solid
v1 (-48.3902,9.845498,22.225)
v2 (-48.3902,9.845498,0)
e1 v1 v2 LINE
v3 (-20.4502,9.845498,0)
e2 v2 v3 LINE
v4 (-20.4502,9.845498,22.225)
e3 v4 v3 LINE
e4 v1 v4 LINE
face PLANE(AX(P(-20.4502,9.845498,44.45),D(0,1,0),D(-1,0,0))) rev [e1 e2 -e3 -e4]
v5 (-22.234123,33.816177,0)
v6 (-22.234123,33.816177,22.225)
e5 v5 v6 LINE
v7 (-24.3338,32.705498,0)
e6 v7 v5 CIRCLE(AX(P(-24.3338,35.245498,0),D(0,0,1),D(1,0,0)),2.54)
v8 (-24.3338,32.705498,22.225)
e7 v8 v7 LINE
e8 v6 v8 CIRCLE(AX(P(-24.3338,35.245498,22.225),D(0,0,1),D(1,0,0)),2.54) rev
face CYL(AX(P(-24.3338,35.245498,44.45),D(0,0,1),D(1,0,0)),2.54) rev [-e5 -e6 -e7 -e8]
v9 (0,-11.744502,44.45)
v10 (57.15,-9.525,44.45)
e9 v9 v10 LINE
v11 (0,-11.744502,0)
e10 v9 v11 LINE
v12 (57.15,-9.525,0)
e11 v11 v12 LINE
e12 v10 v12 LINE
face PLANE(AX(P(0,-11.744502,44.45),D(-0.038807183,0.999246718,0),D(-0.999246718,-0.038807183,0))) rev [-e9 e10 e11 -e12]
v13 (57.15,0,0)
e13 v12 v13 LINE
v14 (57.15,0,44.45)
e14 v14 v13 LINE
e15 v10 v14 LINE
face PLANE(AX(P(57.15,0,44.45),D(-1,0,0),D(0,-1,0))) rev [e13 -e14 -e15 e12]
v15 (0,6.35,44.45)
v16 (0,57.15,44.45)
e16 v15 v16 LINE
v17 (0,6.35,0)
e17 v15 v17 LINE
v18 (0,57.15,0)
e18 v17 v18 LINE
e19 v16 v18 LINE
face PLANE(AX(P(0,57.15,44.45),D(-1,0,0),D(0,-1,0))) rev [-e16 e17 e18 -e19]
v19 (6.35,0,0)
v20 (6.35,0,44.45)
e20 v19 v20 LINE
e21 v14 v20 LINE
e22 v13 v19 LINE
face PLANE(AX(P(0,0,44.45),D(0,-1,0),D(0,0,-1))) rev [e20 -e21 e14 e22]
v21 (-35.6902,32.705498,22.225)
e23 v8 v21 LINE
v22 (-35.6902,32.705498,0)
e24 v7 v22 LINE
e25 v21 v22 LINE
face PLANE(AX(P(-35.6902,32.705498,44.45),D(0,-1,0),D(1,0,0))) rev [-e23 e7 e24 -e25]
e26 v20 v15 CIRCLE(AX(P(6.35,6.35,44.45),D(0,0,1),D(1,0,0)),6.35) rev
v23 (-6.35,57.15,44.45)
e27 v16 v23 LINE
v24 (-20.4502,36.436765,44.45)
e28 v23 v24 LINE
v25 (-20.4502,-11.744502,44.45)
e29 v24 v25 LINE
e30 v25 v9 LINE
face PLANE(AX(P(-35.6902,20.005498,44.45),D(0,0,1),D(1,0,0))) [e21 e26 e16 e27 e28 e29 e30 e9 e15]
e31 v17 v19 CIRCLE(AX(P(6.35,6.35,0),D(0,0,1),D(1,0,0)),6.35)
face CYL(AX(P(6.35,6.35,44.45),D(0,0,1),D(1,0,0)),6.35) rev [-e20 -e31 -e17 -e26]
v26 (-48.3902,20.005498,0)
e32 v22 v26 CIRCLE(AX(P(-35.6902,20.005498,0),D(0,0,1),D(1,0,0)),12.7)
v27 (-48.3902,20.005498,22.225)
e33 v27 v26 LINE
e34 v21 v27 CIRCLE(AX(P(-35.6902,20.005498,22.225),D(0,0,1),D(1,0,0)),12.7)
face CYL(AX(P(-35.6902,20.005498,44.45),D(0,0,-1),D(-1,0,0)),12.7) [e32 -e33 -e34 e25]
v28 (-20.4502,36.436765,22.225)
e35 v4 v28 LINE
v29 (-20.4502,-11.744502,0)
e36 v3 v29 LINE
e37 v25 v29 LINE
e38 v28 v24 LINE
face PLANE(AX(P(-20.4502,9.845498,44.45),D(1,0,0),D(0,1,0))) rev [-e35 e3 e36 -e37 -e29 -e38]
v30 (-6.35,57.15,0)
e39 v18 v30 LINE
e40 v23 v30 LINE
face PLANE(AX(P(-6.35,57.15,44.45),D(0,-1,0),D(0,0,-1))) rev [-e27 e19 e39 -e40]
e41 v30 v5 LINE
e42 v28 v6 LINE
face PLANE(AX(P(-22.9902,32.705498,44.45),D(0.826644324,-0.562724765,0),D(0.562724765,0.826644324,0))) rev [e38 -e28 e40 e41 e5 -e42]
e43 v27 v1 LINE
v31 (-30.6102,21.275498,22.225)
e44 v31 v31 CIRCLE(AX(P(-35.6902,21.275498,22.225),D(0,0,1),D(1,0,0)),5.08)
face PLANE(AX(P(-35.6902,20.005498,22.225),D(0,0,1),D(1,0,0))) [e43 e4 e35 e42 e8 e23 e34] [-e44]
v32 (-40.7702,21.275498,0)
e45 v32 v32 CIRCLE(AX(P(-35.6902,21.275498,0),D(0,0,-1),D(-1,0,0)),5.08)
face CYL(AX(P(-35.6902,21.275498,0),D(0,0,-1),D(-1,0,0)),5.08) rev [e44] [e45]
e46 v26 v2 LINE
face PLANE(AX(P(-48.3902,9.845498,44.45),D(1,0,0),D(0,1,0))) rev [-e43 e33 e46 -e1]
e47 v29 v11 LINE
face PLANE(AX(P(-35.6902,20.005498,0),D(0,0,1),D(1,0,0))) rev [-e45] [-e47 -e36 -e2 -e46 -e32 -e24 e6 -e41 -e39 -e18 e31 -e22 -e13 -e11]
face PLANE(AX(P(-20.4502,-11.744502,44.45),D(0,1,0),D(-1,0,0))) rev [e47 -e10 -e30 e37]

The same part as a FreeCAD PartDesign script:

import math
import FreeCAD as App
import Part
import Sketcher
Q = App.Units.Quantity


def edges_at(feature, points):
    """Names of the edges that pass closest to the given points."""
    edges = feature.Shape.Edges
    near = lambda p: min(range(len(edges)), key=lambda i: edges[i].distToShape(Part.Vertex(*p))[0])
    return sorted({f"Edge{near(p) + 1}" for p in points})

doc = App.newDocument("Part")
body = doc.addObject("PartDesign::Body", "Body")

sketch1 = body.newObject("Sketcher::SketchObject", "Sketch")
sketch1.AttachmentSupport = (doc.getObject("XY_Plane"), [""])
sketch1.MapMode = "FlatFace"
sketch1.addGeometry([
    Part.LineSegment(App.Vector(57, 0, 0), App.Vector(0, 0, 0)),
    Part.LineSegment(App.Vector(0, 0, 0), App.Vector(0, 57, 0)),
    Part.LineSegment(App.Vector(0, 57, 0), App.Vector(-6, 57, 0)),
    Part.LineSegment(App.Vector(-6, 57, 0), App.Vector(-23, 33, 0)),
    Part.LineSegment(App.Vector(-23, 33, 0), App.Vector(-36, 33, 0)),
    Part.ArcOfCircle(Part.Circle(App.Vector(-36, 20, 0), App.Vector(0, 0, 1), 13), math.radians(90), math.radians(180)),
    Part.LineSegment(App.Vector(-48, 20, 0), App.Vector(-48, 10, 0)),
    Part.LineSegment(App.Vector(-48, 10, 0), App.Vector(-20, 10, 0)),
    Part.LineSegment(App.Vector(-20, 10, 0), App.Vector(-20, -12, 0)),
    Part.LineSegment(App.Vector(-20, -12, 0), App.Vector(0, -12, 0)),
    Part.LineSegment(App.Vector(0, -12, 0), App.Vector(57, -10, 0)),
    Part.LineSegment(App.Vector(57, -10, 0), App.Vector(57, 0, 0)),
], False)
sketch1.addConstraint([
    Sketcher.Constraint("Coincident", 0, 2, 1, 1),
    Sketcher.Constraint("Coincident", 1, 2, 2, 1),
    Sketcher.Constraint("Coincident", 2, 2, 3, 1),
    Sketcher.Constraint("Coincident", 3, 2, 4, 1),
    Sketcher.Constraint("Tangent", 4, 2, 5, 1),
    Sketcher.Constraint("Tangent", 5, 2, 6, 1),
    Sketcher.Constraint("Coincident", 6, 2, 7, 1),
    Sketcher.Constraint("Coincident", 7, 2, 8, 1),
    Sketcher.Constraint("Coincident", 8, 2, 9, 1),
    Sketcher.Constraint("Coincident", 9, 2, 10, 1),
    Sketcher.Constraint("Coincident", 10, 2, 11, 1),
    Sketcher.Constraint("Coincident", 11, 2, 0, 1),
    Sketcher.Constraint("Horizontal", 0),
    Sketcher.Constraint("Vertical", 1),
    Sketcher.Constraint("Horizontal", 2),
    Sketcher.Constraint("Horizontal", 4),
    Sketcher.Constraint("Vertical", 6),
    Sketcher.Constraint("Horizontal", 7),
    Sketcher.Constraint("Vertical", 8),
    Sketcher.Constraint("Horizontal", 9),
    Sketcher.Constraint("Vertical", 11),
    Sketcher.Constraint("Coincident", 0, 2, -1, 1),
    Sketcher.Constraint("PointOnObject", 9, 2, -2),
    Sketcher.Constraint("Equal", 0, 1),
    Sketcher.Constraint("Radius", 5, Q("0.5 in")),
    Sketcher.Constraint("DistanceX", 4, 2, 4, 1, Q("0.5 in")),
    Sketcher.Constraint("DistanceX", 7, 1, 7, 2, Q("1.1 in")),
    Sketcher.Constraint("DistanceY", 6, 2, 6, 1, Q("0.4 in")),
    Sketcher.Constraint("DistanceX", 0, 2, 0, 1, Q("2.25 in")),
    Sketcher.Constraint("DistanceX", 2, 2, 2, 1, Q("0.25 in")),
    Sketcher.Constraint("DistanceY", 8, 2, 8, 1, Q("0.85 in")),
    Sketcher.Constraint("DistanceY", 11, 1, 11, 2, Q("0.375 in")),
    Sketcher.Constraint("DistanceX", 9, 1, 9, 2, 20.4502),
    Sketcher.Constraint("Distance", 3, 29.570762),
])
pad1 = body.newObject("PartDesign::Pad", "Pad")
pad1.Profile = sketch1
pad1.Length = Q("1.75 in")
doc.recompute()

fillet = body.newObject("PartDesign::Fillet", "Fillet")
fillet.Base = (pad1, edges_at(pad1, [(0, 0, 22.225)]))
fillet.Radius = Q("0.25 in")

sketch2 = body.newObject("Sketcher::SketchObject", "Sketch001")
sketch2.AttachmentSupport = (doc.getObject("XY_Plane"), [""])
sketch2.MapMode = "FlatFace"
sketch2.AttachmentOffset = App.Placement(App.Vector(0, 0, 0.875 * 25.4), App.Rotation())
sketch2.addGeometry([
    Part.LineSegment(App.Vector(-48.4, 9.8, 0), App.Vector(-20.5, 9.8, 0)),
    Part.LineSegment(App.Vector(-20.5, 9.8, 0), App.Vector(-20.5, 36.4, 0)),
    Part.LineSegment(App.Vector(-20.5, 36.4, 0), App.Vector(-23, 32.7, 0)),
    Part.LineSegment(App.Vector(-23, 32.7, 0), App.Vector(-35.7, 32.7, 0)),
    Part.ArcOfCircle(Part.Circle(App.Vector(-35.7, 20, 0), App.Vector(0, 0, 1), 12.7), math.radians(90), math.radians(180)),
    Part.LineSegment(App.Vector(-48.4, 20, 0), App.Vector(-48.4, 9.8, 0)),
], False)
sketch2.addConstraint([
    Sketcher.Constraint("Coincident", 0, 2, 1, 1),
    Sketcher.Constraint("Coincident", 1, 2, 2, 1),
    Sketcher.Constraint("Coincident", 2, 2, 3, 1),
    Sketcher.Constraint("Tangent", 3, 2, 4, 1),
    Sketcher.Constraint("Tangent", 4, 2, 5, 1),
    Sketcher.Constraint("Coincident", 5, 2, 0, 1),
    Sketcher.Constraint("Horizontal", 0),
    Sketcher.Constraint("Vertical", 1),
    Sketcher.Constraint("Horizontal", 3),
    Sketcher.Constraint("Vertical", 5),
    Sketcher.Constraint("Radius", 4, Q("0.5 in")),
    Sketcher.Constraint("DistanceX", 0, 1, 0, 2, Q("1.1 in")),
    Sketcher.Constraint("DistanceX", 3, 2, 3, 1, Q("0.5 in")),
    Sketcher.Constraint("DistanceY", 5, 2, 5, 1, Q("0.4 in")),
    Sketcher.Constraint("DistanceX", 4, 3, -1, 1, 35.6902),
    Sketcher.Constraint("Distance", 2, 4.513752),
    Sketcher.Constraint("DistanceY", -1, 1, 4, 3, 20.005498),
])
pocket1 = body.newObject("PartDesign::Pocket", "Pocket")
pocket1.Profile = sketch2
pocket1.Length = Q("0.875 in")
pocket1.Reversed = True
doc.recompute()

fillet2 = body.newObject("PartDesign::Fillet", "Fillet001")
fillet2.Base = (pocket1, edges_at(pocket1, [(-22.99, 32.705, 11.113)]))
fillet2.Radius = Q("0.1 in")

sketch3 = body.newObject("Sketcher::SketchObject", "Sketch002")
sketch3.AttachmentSupport = (doc.getObject("XY_Plane"), [""])
sketch3.MapMode = "FlatFace"
sketch3.addGeometry(Part.Circle(App.Vector(-36, 21, 0), App.Vector(0, 0, 1), 5), False)
sketch3.addConstraint([
    Sketcher.Constraint("Diameter", 0, Q("0.4 in")),
    Sketcher.Constraint("DistanceX", 0, 3, -1, 1, 35.6902),
    Sketcher.Constraint("DistanceY", -1, 1, 0, 3, 21.275498),
])
doc.recompute()
hole = body.newObject("PartDesign::Hole", "Hole")
hole.Profile = sketch3
hole.ThreadType = "None"
hole.Diameter = Q("0.4 in")
hole.DepthType = "ThroughAll"
hole.Reversed = True

doc.recompute()
